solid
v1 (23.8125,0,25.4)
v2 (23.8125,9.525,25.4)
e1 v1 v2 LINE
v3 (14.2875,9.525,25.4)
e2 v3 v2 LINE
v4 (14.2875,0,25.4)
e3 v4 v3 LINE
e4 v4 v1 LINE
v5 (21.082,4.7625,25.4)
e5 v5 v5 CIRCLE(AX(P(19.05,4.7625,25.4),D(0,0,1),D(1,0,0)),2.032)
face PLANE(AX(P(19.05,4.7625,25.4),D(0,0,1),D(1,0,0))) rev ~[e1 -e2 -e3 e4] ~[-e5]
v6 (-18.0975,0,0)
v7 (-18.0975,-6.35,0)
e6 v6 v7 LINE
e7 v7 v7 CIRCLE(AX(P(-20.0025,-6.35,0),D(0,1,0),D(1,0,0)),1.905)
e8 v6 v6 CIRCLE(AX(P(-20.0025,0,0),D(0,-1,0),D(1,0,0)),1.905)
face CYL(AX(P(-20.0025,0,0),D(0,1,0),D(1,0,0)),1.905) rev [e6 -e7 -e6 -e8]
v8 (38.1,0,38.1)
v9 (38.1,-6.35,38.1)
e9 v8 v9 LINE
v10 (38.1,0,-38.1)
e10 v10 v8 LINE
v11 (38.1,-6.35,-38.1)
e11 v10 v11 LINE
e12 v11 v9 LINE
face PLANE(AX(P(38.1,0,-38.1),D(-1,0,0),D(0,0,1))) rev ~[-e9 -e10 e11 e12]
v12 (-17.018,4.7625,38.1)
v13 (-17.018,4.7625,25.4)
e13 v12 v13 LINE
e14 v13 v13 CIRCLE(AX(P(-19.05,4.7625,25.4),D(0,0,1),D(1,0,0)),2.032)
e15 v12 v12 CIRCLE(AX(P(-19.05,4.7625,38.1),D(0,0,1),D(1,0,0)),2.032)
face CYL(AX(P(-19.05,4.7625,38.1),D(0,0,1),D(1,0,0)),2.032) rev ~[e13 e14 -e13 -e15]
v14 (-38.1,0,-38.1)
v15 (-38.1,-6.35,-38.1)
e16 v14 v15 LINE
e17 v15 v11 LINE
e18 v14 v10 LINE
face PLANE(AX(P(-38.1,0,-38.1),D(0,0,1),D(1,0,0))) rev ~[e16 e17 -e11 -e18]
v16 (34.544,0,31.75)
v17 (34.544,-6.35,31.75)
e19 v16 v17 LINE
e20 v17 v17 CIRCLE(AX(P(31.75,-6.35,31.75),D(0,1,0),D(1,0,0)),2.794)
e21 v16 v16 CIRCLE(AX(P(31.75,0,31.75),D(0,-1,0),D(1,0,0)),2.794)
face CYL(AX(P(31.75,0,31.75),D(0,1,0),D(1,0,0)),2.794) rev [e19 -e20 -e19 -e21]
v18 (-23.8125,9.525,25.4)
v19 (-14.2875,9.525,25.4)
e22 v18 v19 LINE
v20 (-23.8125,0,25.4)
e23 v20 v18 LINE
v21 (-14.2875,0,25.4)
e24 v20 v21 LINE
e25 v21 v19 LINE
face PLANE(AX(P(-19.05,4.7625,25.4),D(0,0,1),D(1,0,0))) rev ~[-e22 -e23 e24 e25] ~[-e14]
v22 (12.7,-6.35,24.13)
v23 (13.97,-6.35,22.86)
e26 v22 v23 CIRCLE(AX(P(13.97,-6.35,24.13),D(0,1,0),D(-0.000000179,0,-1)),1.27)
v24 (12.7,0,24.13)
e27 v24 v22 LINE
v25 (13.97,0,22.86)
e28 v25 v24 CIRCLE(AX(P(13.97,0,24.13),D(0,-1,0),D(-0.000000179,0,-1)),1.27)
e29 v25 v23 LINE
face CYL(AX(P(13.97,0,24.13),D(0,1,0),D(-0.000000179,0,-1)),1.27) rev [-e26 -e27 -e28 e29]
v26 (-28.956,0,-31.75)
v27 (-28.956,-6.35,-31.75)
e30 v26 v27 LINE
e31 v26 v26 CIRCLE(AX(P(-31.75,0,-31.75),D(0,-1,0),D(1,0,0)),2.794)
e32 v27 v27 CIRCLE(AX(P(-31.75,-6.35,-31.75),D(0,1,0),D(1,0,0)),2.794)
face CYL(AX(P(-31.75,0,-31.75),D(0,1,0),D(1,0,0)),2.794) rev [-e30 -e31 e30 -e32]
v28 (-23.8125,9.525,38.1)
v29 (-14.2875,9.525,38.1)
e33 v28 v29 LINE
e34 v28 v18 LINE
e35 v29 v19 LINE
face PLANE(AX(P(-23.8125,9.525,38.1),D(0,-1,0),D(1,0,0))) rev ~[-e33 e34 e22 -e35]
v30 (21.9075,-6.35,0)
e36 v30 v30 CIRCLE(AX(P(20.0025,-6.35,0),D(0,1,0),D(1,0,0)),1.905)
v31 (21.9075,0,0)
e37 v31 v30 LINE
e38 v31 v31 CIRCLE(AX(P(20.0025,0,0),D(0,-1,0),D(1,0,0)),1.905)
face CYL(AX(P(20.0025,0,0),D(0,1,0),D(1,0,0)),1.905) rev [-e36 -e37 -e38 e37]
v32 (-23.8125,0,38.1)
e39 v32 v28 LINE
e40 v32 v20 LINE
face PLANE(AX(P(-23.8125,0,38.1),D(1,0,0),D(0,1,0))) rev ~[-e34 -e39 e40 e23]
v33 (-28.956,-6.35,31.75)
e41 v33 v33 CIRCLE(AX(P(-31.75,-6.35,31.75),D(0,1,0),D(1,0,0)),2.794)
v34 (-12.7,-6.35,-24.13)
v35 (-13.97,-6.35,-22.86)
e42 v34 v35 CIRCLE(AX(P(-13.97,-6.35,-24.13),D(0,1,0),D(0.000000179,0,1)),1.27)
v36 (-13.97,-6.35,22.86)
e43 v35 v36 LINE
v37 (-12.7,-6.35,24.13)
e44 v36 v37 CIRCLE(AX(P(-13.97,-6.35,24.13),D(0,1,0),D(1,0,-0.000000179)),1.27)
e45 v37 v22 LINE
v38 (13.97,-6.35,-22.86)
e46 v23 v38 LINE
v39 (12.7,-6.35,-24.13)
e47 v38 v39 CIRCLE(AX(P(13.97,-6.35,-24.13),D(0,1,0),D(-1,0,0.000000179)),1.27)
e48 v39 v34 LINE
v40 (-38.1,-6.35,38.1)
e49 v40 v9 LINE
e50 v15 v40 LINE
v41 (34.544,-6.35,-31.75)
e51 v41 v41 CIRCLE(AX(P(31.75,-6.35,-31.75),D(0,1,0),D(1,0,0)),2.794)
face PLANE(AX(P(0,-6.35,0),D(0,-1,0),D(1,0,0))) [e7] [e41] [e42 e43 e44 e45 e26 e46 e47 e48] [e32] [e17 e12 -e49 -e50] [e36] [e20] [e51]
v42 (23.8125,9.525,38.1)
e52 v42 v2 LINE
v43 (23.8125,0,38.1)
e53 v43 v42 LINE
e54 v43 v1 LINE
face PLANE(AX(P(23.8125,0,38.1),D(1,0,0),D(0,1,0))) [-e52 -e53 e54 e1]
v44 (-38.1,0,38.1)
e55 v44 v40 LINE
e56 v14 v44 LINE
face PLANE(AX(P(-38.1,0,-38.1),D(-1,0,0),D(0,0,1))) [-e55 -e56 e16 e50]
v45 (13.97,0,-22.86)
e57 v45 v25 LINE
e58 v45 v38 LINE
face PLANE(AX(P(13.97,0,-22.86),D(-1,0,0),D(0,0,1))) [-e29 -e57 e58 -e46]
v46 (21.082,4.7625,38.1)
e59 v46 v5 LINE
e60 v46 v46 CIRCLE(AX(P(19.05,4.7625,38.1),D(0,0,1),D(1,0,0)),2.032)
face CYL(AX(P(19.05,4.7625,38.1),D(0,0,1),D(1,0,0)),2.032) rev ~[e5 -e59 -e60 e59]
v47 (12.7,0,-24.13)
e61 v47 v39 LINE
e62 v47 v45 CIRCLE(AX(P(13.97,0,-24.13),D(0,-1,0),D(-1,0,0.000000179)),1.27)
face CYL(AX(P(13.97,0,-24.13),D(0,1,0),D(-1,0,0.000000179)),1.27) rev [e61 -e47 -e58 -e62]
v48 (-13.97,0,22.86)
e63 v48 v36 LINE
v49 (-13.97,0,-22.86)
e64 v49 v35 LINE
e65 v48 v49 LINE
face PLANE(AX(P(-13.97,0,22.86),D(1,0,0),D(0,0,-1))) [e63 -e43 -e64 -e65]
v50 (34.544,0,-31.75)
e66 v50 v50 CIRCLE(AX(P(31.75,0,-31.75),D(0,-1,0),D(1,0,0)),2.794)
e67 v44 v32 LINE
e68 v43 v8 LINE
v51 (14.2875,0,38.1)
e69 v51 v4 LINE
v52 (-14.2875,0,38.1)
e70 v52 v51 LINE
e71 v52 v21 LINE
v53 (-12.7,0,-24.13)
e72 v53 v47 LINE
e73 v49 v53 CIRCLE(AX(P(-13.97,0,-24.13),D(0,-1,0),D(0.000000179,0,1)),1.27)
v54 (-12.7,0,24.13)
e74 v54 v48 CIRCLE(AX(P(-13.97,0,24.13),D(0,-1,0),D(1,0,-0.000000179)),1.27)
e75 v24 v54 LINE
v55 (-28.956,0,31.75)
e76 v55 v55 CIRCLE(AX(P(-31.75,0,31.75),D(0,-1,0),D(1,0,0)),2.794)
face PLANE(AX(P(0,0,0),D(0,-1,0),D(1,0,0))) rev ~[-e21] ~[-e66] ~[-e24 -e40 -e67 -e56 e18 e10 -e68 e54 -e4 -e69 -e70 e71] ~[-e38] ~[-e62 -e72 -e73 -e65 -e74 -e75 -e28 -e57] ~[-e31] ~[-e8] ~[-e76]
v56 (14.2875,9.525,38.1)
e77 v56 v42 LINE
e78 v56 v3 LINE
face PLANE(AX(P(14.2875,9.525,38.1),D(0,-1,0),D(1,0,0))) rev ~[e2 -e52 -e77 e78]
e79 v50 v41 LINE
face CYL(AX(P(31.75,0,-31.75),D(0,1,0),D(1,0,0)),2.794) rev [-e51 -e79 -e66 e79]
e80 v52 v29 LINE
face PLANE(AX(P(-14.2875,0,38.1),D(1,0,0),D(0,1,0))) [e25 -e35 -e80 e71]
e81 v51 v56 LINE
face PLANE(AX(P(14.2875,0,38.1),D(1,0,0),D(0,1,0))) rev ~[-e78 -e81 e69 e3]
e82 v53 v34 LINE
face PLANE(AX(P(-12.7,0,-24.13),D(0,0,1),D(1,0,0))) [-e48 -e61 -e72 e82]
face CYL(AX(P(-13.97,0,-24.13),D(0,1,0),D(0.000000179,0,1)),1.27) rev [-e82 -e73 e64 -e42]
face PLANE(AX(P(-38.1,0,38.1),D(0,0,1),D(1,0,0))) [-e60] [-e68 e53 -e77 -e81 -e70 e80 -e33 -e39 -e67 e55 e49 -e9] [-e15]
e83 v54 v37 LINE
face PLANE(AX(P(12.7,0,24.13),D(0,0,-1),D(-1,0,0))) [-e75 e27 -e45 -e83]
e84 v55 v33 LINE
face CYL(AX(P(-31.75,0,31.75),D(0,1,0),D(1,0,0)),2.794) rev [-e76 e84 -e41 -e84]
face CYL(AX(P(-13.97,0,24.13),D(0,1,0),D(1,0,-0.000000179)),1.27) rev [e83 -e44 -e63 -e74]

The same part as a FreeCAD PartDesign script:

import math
import FreeCAD as App
import Part
import Sketcher

V = App.Vector
Q = App.Units.Quantity


def add_polygon(sketch, points):
    """Adds a closed chain of lines whose ends are joined by coincident constraints."""
    first, n = sketch.GeometryCount, len(points)
    for a, b in zip(points, points[1:] + points[:1]):
        sketch.addGeometry(Part.LineSegment(App.Vector(*a, 0), App.Vector(*b, 0)), False)
    for i in range(n):
        sketch.addConstraint(Sketcher.Constraint("Coincident", first + i, 2, first + (i + 1) % n, 1))

doc = App.newDocument("Part")
body = doc.addObject("PartDesign::Body", "Body")

# Sketch on XZ plane
sketch1 = body.newObject("Sketcher::SketchObject", "Sketch")
sketch1.AttachmentSupport = (doc.getObject("XZ_Plane"), [""])
sketch1.MapMode = "FlatFace"
add_polygon(sketch1, [(-38, 38), (-38, -38), (38, -38), (38, 38)])  # lines 0-3
sketch1.addConstraint(Sketcher.Constraint("Vertical", 0))
sketch1.addConstraint(Sketcher.Constraint("Horizontal", 1))
sketch1.addConstraint(Sketcher.Constraint("Vertical", 2))
sketch1.addConstraint(Sketcher.Constraint("Horizontal", 3))
sketch1.addConstraint(Sketcher.Constraint("Symmetric", 0, 2, 2, 2, -1, 1))
sketch1.addConstraint(Sketcher.Constraint("Equal", 3, 0))
sketch1.addConstraint(Sketcher.Constraint("DistanceX", 1, 1, 1, 2, Q("3 in")))
pad1 = body.newObject("PartDesign::Pad", "Pad")
pad1.Profile = sketch1
pad1.Length = Q("0.25 in")

# Sketch on XZ plane
sketch2 = body.newObject("Sketcher::SketchObject", "Sketch001")
sketch2.AttachmentSupport = (doc.getObject("XZ_Plane"), [""])
sketch2.MapMode = "FlatFace"
sketch2.addGeometry(Part.LineSegment(V(12.7, 24.1, 0), V(-12.7, 24.1, 0)), False)
sketch2.addGeometry(Part.ArcOfCircle(Part.Circle(V(-14, 24.1, 0), V(0, 0, 1), 1.3), math.radians(0), math.radians(270)), False)
sketch2.addGeometry(Part.LineSegment(V(-14, 22.9, 0), V(-14, -22.9, 0)), False)
sketch2.addGeometry(Part.ArcOfCircle(Part.Circle(V(-14, -24.1, 0), V(0, 0, 1), 1.3), math.radians(90), math.radians(360)), False)
sketch2.addGeometry(Part.LineSegment(V(-12.7, -24.1, 0), V(12.7, -24.1, 0)), False)
sketch2.addGeometry(Part.ArcOfCircle(Part.Circle(V(14, -24.1, 0), V(0, 0, 1), 1.3), math.radians(180), math.radians(450)), False)
sketch2.addGeometry(Part.LineSegment(V(14, -22.9, 0), V(14, 22.9, 0)), False)
sketch2.addGeometry(Part.ArcOfCircle(Part.Circle(V(14, 24.1, 0), V(0, 0, 1), 1.3), math.radians(-90), math.radians(180)), False)
sketch2.addConstraint(Sketcher.Constraint("Coincident", 0, 2, 1, 1))
sketch2.addConstraint(Sketcher.Constraint("Coincident", 1, 2, 2, 1))
sketch2.addConstraint(Sketcher.Constraint("Coincident", 2, 2, 3, 1))
sketch2.addConstraint(Sketcher.Constraint("Coincident", 3, 2, 4, 1))
sketch2.addConstraint(Sketcher.Constraint("Coincident", 4, 2, 5, 1))
sketch2.addConstraint(Sketcher.Constraint("Coincident", 5, 2, 6, 1))
sketch2.addConstraint(Sketcher.Constraint("Coincident", 6, 2, 7, 1))
sketch2.addConstraint(Sketcher.Constraint("Coincident", 7, 2, 0, 1))
sketch2.addConstraint(Sketcher.Constraint("Horizontal", 0))
sketch2.addConstraint(Sketcher.Constraint("Vertical", 2))
sketch2.addConstraint(Sketcher.Constraint("Horizontal", 4))
sketch2.addConstraint(Sketcher.Constraint("Vertical", 6))
sketch2.addConstraint(Sketcher.Constraint("Equal", 1, 3))
sketch2.addConstraint(Sketcher.Constraint("Equal", 3, 5))
sketch2.addConstraint(Sketcher.Constraint("Equal", 5, 7))
sketch2.addConstraint(Sketcher.Constraint("Symmetric", 1, 3, 5, 3, -1, 1))
sketch2.addConstraint(Sketcher.Constraint("Symmetric", 3, 3, 7, 3, -1, 1))
sketch2.addConstraint(Sketcher.Constraint("Symmetric", 3, 3, 5, 3, -2))
sketch2.addConstraint(Sketcher.Constraint("Horizontal", 7, 3, 0, 2))
sketch2.addConstraint(Sketcher.Constraint("Horizontal", 5, 3, 3, 2))
sketch2.addConstraint(Sketcher.Constraint("Vertical", 3, 3, 1, 2))
sketch2.addConstraint(Sketcher.Constraint("Vertical", 7, 3, 5, 2))
sketch2.addConstraint(Sketcher.Constraint("DistanceX", 0, 2, 0, 1, Q("1 in")))
sketch2.addConstraint(Sketcher.Constraint("Radius", 1, Q("0.05 in")))
sketch2.addConstraint(Sketcher.Constraint("DistanceY", 2, 2, 2, 1, Q("1.8 in")))
pocket1 = body.newObject("PartDesign::Pocket", "Pocket")
pocket1.Profile = sketch2
pocket1.Type = "ThroughAll"
pocket1.Reversed = True

# Sketch on XZ plane
sketch3 = body.newObject("Sketcher::SketchObject", "Sketch002")
sketch3.AttachmentSupport = (doc.getObject("XZ_Plane"), [""])
sketch3.MapMode = "FlatFace"
sketch3.addGeometry(Part.Circle(V(-31.8, 31.8, 0), V(0, 0, 1), 2.8), False)
sketch3.addGeometry(Part.Circle(V(-31.8, -31.8, 0), V(0, 0, 1), 2.8), False)
sketch3.addGeometry(Part.Circle(V(31.8, -31.8, 0), V(0, 0, 1), 2.8), False)
sketch3.addGeometry(Part.Circle(V(31.8, 31.8, 0), V(0, 0, 1), 2.8), False)
sketch3.addConstraint(Sketcher.Constraint("Equal", 0, 1))
sketch3.addConstraint(Sketcher.Constraint("Equal", 1, 2))
sketch3.addConstraint(Sketcher.Constraint("Equal", 2, 3))
sketch3.addConstraint(Sketcher.Constraint("Symmetric", 0, 3, 2, 3, -1, 1))
sketch3.addConstraint(Sketcher.Constraint("Symmetric", 1, 3, 3, 3, -1, 1))
sketch3.addConstraint(Sketcher.Constraint("Symmetric", 1, 3, 2, 3, -2))
sketch3.addConstraint(Sketcher.Constraint("Diameter", 0, Q("0.22 in")))
sketch3.addConstraint(Sketcher.Constraint("DistanceY", 1, 3, 0, 3, Q("2.5 in")))
sketch3.addConstraint(Sketcher.Constraint("DistanceX", 1, 3, 2, 3, Q("2.5 in")))
pocket2 = body.newObject("PartDesign::Pocket", "Pocket001")
pocket2.Profile = sketch3
pocket2.Type = "ThroughAll"
pocket2.Reversed = True

# Sketch on XY plane
sketch4 = body.newObject("Sketcher::SketchObject", "Sketch003")
sketch4.AttachmentSupport = (doc.getObject("XY_Plane"), [""])
sketch4.MapMode = "FlatFace"
sketch4.AttachmentOffset = App.Placement(V(0, 0, 1.5 * 25.4), App.Rotation())
add_polygon(sketch4, [(-23.8, 9.5), (-23.8, 0), (-14.3, 0), (-14.3, 9.5)])  # lines 0-3
sketch4.addGeometry(Part.Circle(V(-19.1, 4.8, 0), V(0, 0, 1), 2), False)  # 4
add_polygon(sketch4, [(14.3, 9.5), (14.3, 0), (23.8, 0), (23.8, 9.5)])  # lines 5-8
sketch4.addGeometry(Part.Circle(V(19.1, 4.8, 0), V(0, 0, 1), 2), False)  # 9
sketch4.addConstraint(Sketcher.Constraint("Vertical", 0))
sketch4.addConstraint(Sketcher.Constraint("Horizontal", 1))
sketch4.addConstraint(Sketcher.Constraint("Vertical", 2))
sketch4.addConstraint(Sketcher.Constraint("Horizontal", 3))
sketch4.addConstraint(Sketcher.Constraint("Vertical", 5))
sketch4.addConstraint(Sketcher.Constraint("Horizontal", 6))
sketch4.addConstraint(Sketcher.Constraint("Vertical", 7))
sketch4.addConstraint(Sketcher.Constraint("Horizontal", 8))
sketch4.addConstraint(Sketcher.Constraint("Equal", 4, 9))
sketch4.addConstraint(Sketcher.Constraint("Symmetric", 1, 2, 5, 2, -1, 1))
sketch4.addConstraint(Sketcher.Constraint("Symmetric", 4, 3, 9, 3, -2))
sketch4.addConstraint(Sketcher.Constraint("Symmetric", 0, 2, 6, 2, -2))
sketch4.addConstraint(Sketcher.Constraint("Horizontal", 3, 2, 7, 2))
sketch4.addConstraint(Sketcher.Constraint("Equal", 8, 0))
sketch4.addConstraint(Sketcher.Constraint("Diameter", 4, Q("0.16 in")))
sketch4.addConstraint(Sketcher.Constraint("DistanceX", 4, 3, 9, 3, Q("1.5 in")))
sketch4.addConstraint(Sketcher.Constraint("DistanceX", 0, 2, 5, 2, Q("1.5 in")))
sketch4.addConstraint(Sketcher.Constraint("DistanceX", 1, 1, 1, 2, Q("0.375 in")))
sketch4.addConstraint(Sketcher.Constraint("DistanceY", -1, 1, 4, 3, Q("0.1875 in")))
pad2 = body.newObject("PartDesign::Pad", "Pad001")
pad2.Profile = sketch4
pad2.Length = Q("0.5 in")
pad2.Reversed = True

# Sketch on XZ plane
sketch5 = body.newObject("Sketcher::SketchObject", "Sketch004")
sketch5.AttachmentSupport = (doc.getObject("XZ_Plane"), [""])
sketch5.MapMode = "FlatFace"
sketch5.addGeometry(Part.Circle(V(-20, 0, 0), V(0, 0, 1), 1.9), False)
sketch5.addGeometry(Part.Circle(V(20, 0, 0), V(0, 0, 1), 1.9), False)
sketch5.addConstraint(Sketcher.Constraint("Equal", 0, 1))
sketch5.addConstraint(Sketcher.Constraint("Symmetric", 0, 3, 1, 3, -1, 1))
sketch5.addConstraint(Sketcher.Constraint("PointOnObject", 0, 3, -1))
sketch5.addConstraint(Sketcher.Constraint("Diameter", 0, Q("0.15 in")))
sketch5.addConstraint(Sketcher.Constraint("DistanceX", 0, 3, 1, 3, Q("1.575 in")))
pocket3 = body.newObject("PartDesign::Pocket", "Pocket002")
pocket3.Profile = sketch5
pocket3.Type = "ThroughAll"
pocket3.Reversed = True

doc.recompute()
